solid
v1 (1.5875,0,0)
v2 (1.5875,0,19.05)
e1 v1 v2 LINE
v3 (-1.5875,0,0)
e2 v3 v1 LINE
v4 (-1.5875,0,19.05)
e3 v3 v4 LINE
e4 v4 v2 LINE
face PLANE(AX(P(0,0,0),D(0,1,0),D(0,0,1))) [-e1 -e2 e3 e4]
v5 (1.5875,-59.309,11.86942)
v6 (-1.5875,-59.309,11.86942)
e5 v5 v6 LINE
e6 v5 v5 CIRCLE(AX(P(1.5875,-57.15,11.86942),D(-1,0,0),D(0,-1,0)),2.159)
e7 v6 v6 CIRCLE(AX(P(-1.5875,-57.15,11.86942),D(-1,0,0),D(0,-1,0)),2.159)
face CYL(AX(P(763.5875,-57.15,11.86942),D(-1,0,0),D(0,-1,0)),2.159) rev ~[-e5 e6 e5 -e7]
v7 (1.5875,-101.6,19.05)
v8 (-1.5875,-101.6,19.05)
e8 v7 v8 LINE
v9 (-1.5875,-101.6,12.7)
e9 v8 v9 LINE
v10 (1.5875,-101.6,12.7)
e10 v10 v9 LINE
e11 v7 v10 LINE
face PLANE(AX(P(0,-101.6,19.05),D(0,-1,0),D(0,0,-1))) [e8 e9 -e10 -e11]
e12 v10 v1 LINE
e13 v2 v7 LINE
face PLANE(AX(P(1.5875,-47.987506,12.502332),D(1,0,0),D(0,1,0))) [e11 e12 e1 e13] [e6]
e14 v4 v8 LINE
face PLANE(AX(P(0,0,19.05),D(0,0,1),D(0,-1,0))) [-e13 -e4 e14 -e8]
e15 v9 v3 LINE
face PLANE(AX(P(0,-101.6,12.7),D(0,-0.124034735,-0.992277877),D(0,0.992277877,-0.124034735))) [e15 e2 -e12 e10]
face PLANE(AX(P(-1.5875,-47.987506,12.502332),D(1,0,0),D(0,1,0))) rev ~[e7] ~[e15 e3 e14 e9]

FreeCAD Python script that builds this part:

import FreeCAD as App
import Part
import Sketcher
Q = App.Units.Quantity


def add_polygon(sketch, points):
    """Adds a closed chain of lines whose ends are joined by coincident constraints."""
    first, n = sketch.GeometryCount, len(points)
    for a, b in zip(points, points[1:] + points[:1]):
        sketch.addGeometry(Part.LineSegment(App.Vector(*a, 0), App.Vector(*b, 0)), False)
    for i in range(n):
        sketch.addConstraint(Sketcher.Constraint("Coincident", first + i, 2, first + (i + 1) % n, 1))

doc = App.newDocument("Part")
params = doc.addObject("Spreadsheet::Sheet", "Params")
for row, (alias, value) in enumerate([
    ("sketch1_width", "4 in"),
    ("sketch1_height", "0.75 in"),
    ("sketch1_height2", "0.25 in"),
    ("pad1_length", "0.125 in"),
    ("sketch2_diameter", "0.17 in"),
    ("hole_diameter", "0.17 in"),
    ("hole_depth", "30 in"),
], start=1):
    params.set(f"A{row}", alias)
    params.set(f"B{row}", "=" + value)
    params.setAlias(f"B{row}", alias)

body = doc.addObject("PartDesign::Body", "Body")

# Sketch on YZ plane
sketch1 = body.newObject("Sketcher::SketchObject", "Sketch")
sketch1.AttachmentSupport = (doc.getObject("YZ_Plane"), [""])
sketch1.MapMode = "FlatFace"
add_polygon(sketch1, [(-102, 13), (0, 0), (0, 19), (-102, 19)])  # lines 0-3
sketch1.addConstraint(Sketcher.Constraint("Vertical", 1))
sketch1.addConstraint(Sketcher.Constraint("Horizontal", 2))
sketch1.addConstraint(Sketcher.Constraint("Vertical", 3))
sketch1.addConstraint(Sketcher.Constraint("Coincident", 0, 2, -1, 1))
sketch1.addConstraint(Sketcher.Constraint("DistanceX", 2, 2, 2, 1, Q("4 in")))
sketch1.addConstraint(Sketcher.Constraint("DistanceY", 1, 1, 1, 2, Q("0.75 in")))
sketch1.addConstraint(Sketcher.Constraint("DistanceY", 3, 2, 3, 1, Q("0.25 in")))
sketch1.setExpression("Constraints[8]", "Params.sketch1_width")
sketch1.setExpression("Constraints[9]", "Params.sketch1_height")
sketch1.setExpression("Constraints[10]", "Params.sketch1_height2")
pad1 = body.newObject("PartDesign::Pad", "Pad")
pad1.Profile = sketch1
pad1.setExpression("Length", "Params.pad1_length")
pad1.Midplane = True

# Sketch on YZ plane
sketch2 = body.newObject("Sketcher::SketchObject", "Sketch001")
sketch2.AttachmentSupport = (doc.getObject("YZ_Plane"), [""])
sketch2.MapMode = "FlatFace"
sketch2.AttachmentOffset = App.Placement(App.Vector(0, 0, 0.0625 * 25.4), App.Rotation())
sketch2.addGeometry(Part.Circle(App.Vector(-57.1, 11.9, 0), App.Vector(0, 0, 1), 2.2), False)
sketch2.addConstraint(Sketcher.Constraint("Diameter", 0, Q("0.17 in")))
sketch2.addConstraint(Sketcher.Constraint("DistanceX", 0, 3, -1, 1, Q("2.25 in")))
sketch2.addConstraint(Sketcher.Constraint("DistanceY", -1, 1, 0, 3, Q("0.4673 in")))
sketch2.setExpression("Constraints[0]", "Params.sketch2_diameter")
doc.recompute()
hole = body.newObject("PartDesign::Hole", "Hole")
hole.Profile = sketch2
hole.ThreadType = "None"
hole.setExpression("Diameter", "Params.hole_diameter")
hole.DepthType = "Dimension"
hole.setExpression("Depth", "Params.hole_depth")
hole.DrillPoint = "Angled"
hole.DrillPointAngle = 118

doc.recompute()
